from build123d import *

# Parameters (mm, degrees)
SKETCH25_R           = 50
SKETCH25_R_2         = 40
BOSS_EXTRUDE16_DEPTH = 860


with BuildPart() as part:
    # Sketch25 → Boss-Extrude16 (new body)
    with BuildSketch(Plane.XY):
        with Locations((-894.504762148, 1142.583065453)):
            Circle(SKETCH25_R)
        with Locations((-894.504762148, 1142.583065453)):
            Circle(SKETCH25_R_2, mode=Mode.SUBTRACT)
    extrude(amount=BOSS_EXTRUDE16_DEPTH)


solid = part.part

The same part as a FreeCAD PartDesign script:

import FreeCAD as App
import Part
import Sketcher
from FreeCAD import Vector

doc = App.newDocument("Part")
body = doc.addObject("PartDesign::Body", "Body")

# Sketch on XY plane
sketch1 = body.newObject("Sketcher::SketchObject", "Sketch")
sketch1.AttachmentSupport = (doc.getObject("XY_Plane"), [""])
sketch1.MapMode = "FlatFace"
sketch1.addGeometry(Part.Circle(Vector(-895, 1143, 0), Vector(0, 0, 1), 50), False)
sketch1.addGeometry(Part.Circle(Vector(-895, 1143, 0), Vector(0, 0, 1), 40), False)
sketch1.addConstraint(Sketcher.Constraint("Coincident", 1, 3, 0, 3))
sketch1.addConstraint(Sketcher.Constraint("Diameter", 0, 100.0))
sketch1.addConstraint(Sketcher.Constraint("Diameter", 1, 80.0))
sketch1.addConstraint(Sketcher.Constraint("DistanceX", 0, 3, -1, 1, 894.504762))
sketch1.addConstraint(Sketcher.Constraint("DistanceY", -1, 1, 0, 3, 1142.583065))
pad1 = body.newObject("PartDesign::Pad", "Pad")
pad1.Profile = sketch1
pad1.Length = 860

doc.recompute()
